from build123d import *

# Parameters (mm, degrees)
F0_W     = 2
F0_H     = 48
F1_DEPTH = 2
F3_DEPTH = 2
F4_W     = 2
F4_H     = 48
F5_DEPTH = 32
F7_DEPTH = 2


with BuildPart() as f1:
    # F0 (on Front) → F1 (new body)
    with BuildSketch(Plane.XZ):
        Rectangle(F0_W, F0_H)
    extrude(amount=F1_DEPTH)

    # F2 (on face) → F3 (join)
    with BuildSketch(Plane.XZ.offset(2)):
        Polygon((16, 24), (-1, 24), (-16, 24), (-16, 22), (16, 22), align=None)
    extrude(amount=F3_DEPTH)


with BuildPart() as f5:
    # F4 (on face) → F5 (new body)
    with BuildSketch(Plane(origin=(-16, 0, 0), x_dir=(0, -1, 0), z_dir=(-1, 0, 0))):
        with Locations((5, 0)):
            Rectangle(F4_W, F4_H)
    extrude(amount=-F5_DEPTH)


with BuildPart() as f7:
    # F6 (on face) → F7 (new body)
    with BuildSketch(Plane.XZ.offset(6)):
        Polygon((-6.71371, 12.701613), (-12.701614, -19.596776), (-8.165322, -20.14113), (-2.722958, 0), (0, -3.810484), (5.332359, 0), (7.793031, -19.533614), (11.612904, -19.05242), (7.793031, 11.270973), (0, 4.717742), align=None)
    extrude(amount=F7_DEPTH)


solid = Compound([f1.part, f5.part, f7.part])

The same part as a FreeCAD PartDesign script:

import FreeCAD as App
import Part
import Sketcher

V = App.Vector
Q = App.Units.Quantity

doc = App.newDocument("Part")
params = doc.addObject("Spreadsheet::Sheet", "Params")
for row, (alias, value) in enumerate([
    ("sketch1_width", "2 mm"),
    ("sketch1_height", "48 mm"),
    ("pad1_length", "2 mm"),
    ("sketch2_width", "32 mm"),
    ("sketch2_height", "2 mm"),
    ("pad2_length", "2 mm"),
    ("sketch3_width", "2 mm"),
    ("sketch3_height", "48 mm"),
    ("pad3_length", "32 mm"),
    ("pad4_length", "2 mm"),
], start=1):
    params.set(f"A{row}", alias)
    params.set(f"B{row}", "=" + value)
    params.setAlias(f"B{row}", alias)

body = doc.addObject("PartDesign::Body", "Body")

sketch1 = body.newObject("Sketcher::SketchObject", "Sketch")
sketch1.AttachmentSupport = (doc.getObject("XZ_Plane"), [""])
sketch1.MapMode = "FlatFace"
sketch1.addGeometry([
    Part.LineSegment(V(-1, 24, 0), V(-1, -24, 0)),
    Part.LineSegment(V(-1, -24, 0), V(1, -24, 0)),
    Part.LineSegment(V(1, -24, 0), V(1, 24, 0)),
    Part.LineSegment(V(1, 24, 0), V(-1, 24, 0)),
], False)
sketch1.addConstraint([
    Sketcher.Constraint("Coincident", 0, 2, 1, 1),
    Sketcher.Constraint("Coincident", 1, 2, 2, 1),
    Sketcher.Constraint("Coincident", 2, 2, 3, 1),
    Sketcher.Constraint("Coincident", 3, 2, 0, 1),
    Sketcher.Constraint("Vertical", 0),
    Sketcher.Constraint("Horizontal", 1),
    Sketcher.Constraint("Vertical", 2),
    Sketcher.Constraint("Horizontal", 3),
    Sketcher.Constraint("Symmetric", 0, 2, 2, 2, -1, 1),
    Sketcher.Constraint("DistanceX", 1, 1, 1, 2, Q("2 mm")),
    Sketcher.Constraint("DistanceY", 0, 2, 0, 1, Q("48 mm")),
])
sketch1.setExpression("Constraints[9]", "Params.sketch1_width")
sketch1.setExpression("Constraints[10]", "Params.sketch1_height")
pad1 = body.newObject("PartDesign::Pad", "Pad")
pad1.Profile = sketch1
pad1.setExpression("Length", "Params.pad1_length")

sketch2 = body.newObject("Sketcher::SketchObject", "Sketch001")
sketch2.AttachmentSupport = (doc.getObject("XZ_Plane"), [""])
sketch2.MapMode = "FlatFace"
sketch2.AttachmentOffset = App.Placement(V(0, 0, 2), App.Rotation())
sketch2.addGeometry([
    Part.LineSegment(V(16, 24, 0), V(-16, 24, 0)),
    Part.LineSegment(V(-16, 24, 0), V(-16, 22, 0)),
    Part.LineSegment(V(-16, 22, 0), V(16, 22, 0)),
    Part.LineSegment(V(16, 22, 0), V(16, 24, 0)),
], False)
sketch2.addConstraint([
    Sketcher.Constraint("Coincident", 0, 2, 1, 1),
    Sketcher.Constraint("Coincident", 1, 2, 2, 1),
    Sketcher.Constraint("Coincident", 2, 2, 3, 1),
    Sketcher.Constraint("Coincident", 3, 2, 0, 1),
    Sketcher.Constraint("Horizontal", 0),
    Sketcher.Constraint("Vertical", 1),
    Sketcher.Constraint("Horizontal", 2),
    Sketcher.Constraint("Vertical", 3),
    Sketcher.Constraint("DistanceX", 0, 2, 0, 1, Q("32 mm")),
    Sketcher.Constraint("DistanceY", 1, 2, 1, 1, Q("2 mm")),
    Sketcher.Constraint("DistanceX", 0, 2, -1, 1, Q("16 mm")),
    Sketcher.Constraint("DistanceY", -1, 1, 0, 2, Q("24 mm")),
])
sketch2.setExpression("Constraints[8]", "Params.sketch2_width")
sketch2.setExpression("Constraints[9]", "Params.sketch2_height")
pad2 = body.newObject("PartDesign::Pad", "Pad001")
pad2.Profile = sketch2
pad2.setExpression("Length", "Params.pad2_length")
body2 = doc.addObject("PartDesign::Body", "Body001")

sketch3 = body2.newObject("Sketcher::SketchObject", "Sketch002")
sketch3.AttachmentSupport = (doc.getObject("YZ_Plane001"), [""])
sketch3.MapMode = "FlatFace"
sketch3.AttachmentOffset = App.Placement(V(0, 0, -16), App.Rotation())
sketch3.addGeometry([
    Part.LineSegment(V(-4, 24, 0), V(-4, -24, 0)),
    Part.LineSegment(V(-4, -24, 0), V(-6, -24, 0)),
    Part.LineSegment(V(-6, -24, 0), V(-6, 24, 0)),
    Part.LineSegment(V(-6, 24, 0), V(-4, 24, 0)),
], False)
sketch3.addConstraint([
    Sketcher.Constraint("Coincident", 0, 2, 1, 1),
    Sketcher.Constraint("Coincident", 1, 2, 2, 1),
    Sketcher.Constraint("Coincident", 2, 2, 3, 1),
    Sketcher.Constraint("Coincident", 3, 2, 0, 1),
    Sketcher.Constraint("Vertical", 0),
    Sketcher.Constraint("Horizontal", 1),
    Sketcher.Constraint("Vertical", 2),
    Sketcher.Constraint("Horizontal", 3),
    Sketcher.Constraint("DistanceX", 1, 2, 1, 1, Q("2 mm")),
    Sketcher.Constraint("DistanceY", 0, 2, 0, 1, Q("48 mm")),
    Sketcher.Constraint("DistanceX", 0, 2, -1, 1, Q("4 mm")),
    Sketcher.Constraint("DistanceY", 0, 2, -1, 1, Q("24 mm")),
])
sketch3.setExpression("Constraints[8]", "Params.sketch3_width")
sketch3.setExpression("Constraints[9]", "Params.sketch3_height")
pad3 = body2.newObject("PartDesign::Pad", "Pad002")
pad3.Profile = sketch3
pad3.setExpression("Length", "Params.pad3_length")
body3 = doc.addObject("PartDesign::Body", "Body002")

sketch4 = body3.newObject("Sketcher::SketchObject", "Sketch003")
sketch4.AttachmentSupport = (doc.getObject("XZ_Plane002"), [""])
sketch4.MapMode = "FlatFace"
sketch4.AttachmentOffset = App.Placement(V(0, 0, 6), App.Rotation())
sketch4.addGeometry([
    Part.LineSegment(V(-6.7, 12.7, 0), V(-12.7, -19.6, 0)),
    Part.LineSegment(V(-12.7, -19.6, 0), V(-8.2, -20.1, 0)),
    Part.LineSegment(V(-8.2, -20.1, 0), V(-2.7, 0, 0)),
    Part.LineSegment(V(-2.7, 0, 0), V(0, -3.8, 0)),
    Part.LineSegment(V(0, -3.8, 0), V(5.3, 0, 0)),
    Part.LineSegment(V(5.3, 0, 0), V(7.8, -19.5, 0)),
    Part.LineSegment(V(7.8, -19.5, 0), V(11.6, -19.1, 0)),
    Part.LineSegment(V(11.6, -19.1, 0), V(7.8, 11.3, 0)),
    Part.LineSegment(V(7.8, 11.3, 0), V(0, 4.7, 0)),
    Part.LineSegment(V(0, 4.7, 0), V(-6.7, 12.7, 0)),
], False)
sketch4.addConstraint([
    Sketcher.Constraint("Coincident", 0, 2, 1, 1),
    Sketcher.Constraint("Coincident", 1, 2, 2, 1),
    Sketcher.Constraint("Coincident", 2, 2, 3, 1),
    Sketcher.Constraint("Coincident", 3, 2, 4, 1),
    Sketcher.Constraint("Coincident", 4, 2, 5, 1),
    Sketcher.Constraint("Coincident", 5, 2, 6, 1),
    Sketcher.Constraint("Coincident", 6, 2, 7, 1),
    Sketcher.Constraint("Coincident", 7, 2, 8, 1),
    Sketcher.Constraint("Coincident", 8, 2, 9, 1),
    Sketcher.Constraint("Coincident", 9, 2, 0, 1),
    Sketcher.Constraint("PointOnObject", 2, 2, -1),
    Sketcher.Constraint("PointOnObject", 3, 2, -2),
    Sketcher.Constraint("PointOnObject", 4, 2, -1),
    Sketcher.Constraint("PointOnObject", 8, 2, -2),
    Sketcher.Constraint("Perpendicular", 3, 4),
    Sketcher.Constraint("Perpendicular", 5, 6),
    Sketcher.Constraint("Perpendicular", 6, 7),
    Sketcher.Constraint("Perpendicular", 8, 9),
    Sketcher.Constraint("Vertical", 5, 2, 7, 2),
    Sketcher.Constraint("Distance", 0, Q("32.848758 mm")),
    Sketcher.Constraint("Distance", 2, Q("20.863472 mm")),
    Sketcher.Constraint("Distance", 5, Q("19.687991 mm")),
    Sketcher.Constraint("Distance", 6, Q("3.850062 mm")),
    Sketcher.Constraint("Distance", 8, Q("10.18215 mm")),
    Sketcher.Constraint("DistanceY", 1, 2, -1, 1, Q("20.14113 mm")),
    Sketcher.Constraint("DistanceX", 2, 2, -1, 1, Q("2.722958 mm")),
    Sketcher.Constraint("DistanceX", -1, 1, 4, 2, Q("5.332359 mm")),
    Sketcher.Constraint("DistanceX", -1, 1, 5, 2, Q("7.793031 mm")),
    Sketcher.Constraint("DistanceX", 9, 2, -1, 1, Q("6.71371 mm")),
    Sketcher.Constraint("DistanceX", 0, 2, 1, 2, Q("4.536292 mm")),
])
pad4 = body3.newObject("PartDesign::Pad", "Pad003")
pad4.Profile = sketch4
pad4.setExpression("Length", "Params.pad4_length")

doc.recompute()
